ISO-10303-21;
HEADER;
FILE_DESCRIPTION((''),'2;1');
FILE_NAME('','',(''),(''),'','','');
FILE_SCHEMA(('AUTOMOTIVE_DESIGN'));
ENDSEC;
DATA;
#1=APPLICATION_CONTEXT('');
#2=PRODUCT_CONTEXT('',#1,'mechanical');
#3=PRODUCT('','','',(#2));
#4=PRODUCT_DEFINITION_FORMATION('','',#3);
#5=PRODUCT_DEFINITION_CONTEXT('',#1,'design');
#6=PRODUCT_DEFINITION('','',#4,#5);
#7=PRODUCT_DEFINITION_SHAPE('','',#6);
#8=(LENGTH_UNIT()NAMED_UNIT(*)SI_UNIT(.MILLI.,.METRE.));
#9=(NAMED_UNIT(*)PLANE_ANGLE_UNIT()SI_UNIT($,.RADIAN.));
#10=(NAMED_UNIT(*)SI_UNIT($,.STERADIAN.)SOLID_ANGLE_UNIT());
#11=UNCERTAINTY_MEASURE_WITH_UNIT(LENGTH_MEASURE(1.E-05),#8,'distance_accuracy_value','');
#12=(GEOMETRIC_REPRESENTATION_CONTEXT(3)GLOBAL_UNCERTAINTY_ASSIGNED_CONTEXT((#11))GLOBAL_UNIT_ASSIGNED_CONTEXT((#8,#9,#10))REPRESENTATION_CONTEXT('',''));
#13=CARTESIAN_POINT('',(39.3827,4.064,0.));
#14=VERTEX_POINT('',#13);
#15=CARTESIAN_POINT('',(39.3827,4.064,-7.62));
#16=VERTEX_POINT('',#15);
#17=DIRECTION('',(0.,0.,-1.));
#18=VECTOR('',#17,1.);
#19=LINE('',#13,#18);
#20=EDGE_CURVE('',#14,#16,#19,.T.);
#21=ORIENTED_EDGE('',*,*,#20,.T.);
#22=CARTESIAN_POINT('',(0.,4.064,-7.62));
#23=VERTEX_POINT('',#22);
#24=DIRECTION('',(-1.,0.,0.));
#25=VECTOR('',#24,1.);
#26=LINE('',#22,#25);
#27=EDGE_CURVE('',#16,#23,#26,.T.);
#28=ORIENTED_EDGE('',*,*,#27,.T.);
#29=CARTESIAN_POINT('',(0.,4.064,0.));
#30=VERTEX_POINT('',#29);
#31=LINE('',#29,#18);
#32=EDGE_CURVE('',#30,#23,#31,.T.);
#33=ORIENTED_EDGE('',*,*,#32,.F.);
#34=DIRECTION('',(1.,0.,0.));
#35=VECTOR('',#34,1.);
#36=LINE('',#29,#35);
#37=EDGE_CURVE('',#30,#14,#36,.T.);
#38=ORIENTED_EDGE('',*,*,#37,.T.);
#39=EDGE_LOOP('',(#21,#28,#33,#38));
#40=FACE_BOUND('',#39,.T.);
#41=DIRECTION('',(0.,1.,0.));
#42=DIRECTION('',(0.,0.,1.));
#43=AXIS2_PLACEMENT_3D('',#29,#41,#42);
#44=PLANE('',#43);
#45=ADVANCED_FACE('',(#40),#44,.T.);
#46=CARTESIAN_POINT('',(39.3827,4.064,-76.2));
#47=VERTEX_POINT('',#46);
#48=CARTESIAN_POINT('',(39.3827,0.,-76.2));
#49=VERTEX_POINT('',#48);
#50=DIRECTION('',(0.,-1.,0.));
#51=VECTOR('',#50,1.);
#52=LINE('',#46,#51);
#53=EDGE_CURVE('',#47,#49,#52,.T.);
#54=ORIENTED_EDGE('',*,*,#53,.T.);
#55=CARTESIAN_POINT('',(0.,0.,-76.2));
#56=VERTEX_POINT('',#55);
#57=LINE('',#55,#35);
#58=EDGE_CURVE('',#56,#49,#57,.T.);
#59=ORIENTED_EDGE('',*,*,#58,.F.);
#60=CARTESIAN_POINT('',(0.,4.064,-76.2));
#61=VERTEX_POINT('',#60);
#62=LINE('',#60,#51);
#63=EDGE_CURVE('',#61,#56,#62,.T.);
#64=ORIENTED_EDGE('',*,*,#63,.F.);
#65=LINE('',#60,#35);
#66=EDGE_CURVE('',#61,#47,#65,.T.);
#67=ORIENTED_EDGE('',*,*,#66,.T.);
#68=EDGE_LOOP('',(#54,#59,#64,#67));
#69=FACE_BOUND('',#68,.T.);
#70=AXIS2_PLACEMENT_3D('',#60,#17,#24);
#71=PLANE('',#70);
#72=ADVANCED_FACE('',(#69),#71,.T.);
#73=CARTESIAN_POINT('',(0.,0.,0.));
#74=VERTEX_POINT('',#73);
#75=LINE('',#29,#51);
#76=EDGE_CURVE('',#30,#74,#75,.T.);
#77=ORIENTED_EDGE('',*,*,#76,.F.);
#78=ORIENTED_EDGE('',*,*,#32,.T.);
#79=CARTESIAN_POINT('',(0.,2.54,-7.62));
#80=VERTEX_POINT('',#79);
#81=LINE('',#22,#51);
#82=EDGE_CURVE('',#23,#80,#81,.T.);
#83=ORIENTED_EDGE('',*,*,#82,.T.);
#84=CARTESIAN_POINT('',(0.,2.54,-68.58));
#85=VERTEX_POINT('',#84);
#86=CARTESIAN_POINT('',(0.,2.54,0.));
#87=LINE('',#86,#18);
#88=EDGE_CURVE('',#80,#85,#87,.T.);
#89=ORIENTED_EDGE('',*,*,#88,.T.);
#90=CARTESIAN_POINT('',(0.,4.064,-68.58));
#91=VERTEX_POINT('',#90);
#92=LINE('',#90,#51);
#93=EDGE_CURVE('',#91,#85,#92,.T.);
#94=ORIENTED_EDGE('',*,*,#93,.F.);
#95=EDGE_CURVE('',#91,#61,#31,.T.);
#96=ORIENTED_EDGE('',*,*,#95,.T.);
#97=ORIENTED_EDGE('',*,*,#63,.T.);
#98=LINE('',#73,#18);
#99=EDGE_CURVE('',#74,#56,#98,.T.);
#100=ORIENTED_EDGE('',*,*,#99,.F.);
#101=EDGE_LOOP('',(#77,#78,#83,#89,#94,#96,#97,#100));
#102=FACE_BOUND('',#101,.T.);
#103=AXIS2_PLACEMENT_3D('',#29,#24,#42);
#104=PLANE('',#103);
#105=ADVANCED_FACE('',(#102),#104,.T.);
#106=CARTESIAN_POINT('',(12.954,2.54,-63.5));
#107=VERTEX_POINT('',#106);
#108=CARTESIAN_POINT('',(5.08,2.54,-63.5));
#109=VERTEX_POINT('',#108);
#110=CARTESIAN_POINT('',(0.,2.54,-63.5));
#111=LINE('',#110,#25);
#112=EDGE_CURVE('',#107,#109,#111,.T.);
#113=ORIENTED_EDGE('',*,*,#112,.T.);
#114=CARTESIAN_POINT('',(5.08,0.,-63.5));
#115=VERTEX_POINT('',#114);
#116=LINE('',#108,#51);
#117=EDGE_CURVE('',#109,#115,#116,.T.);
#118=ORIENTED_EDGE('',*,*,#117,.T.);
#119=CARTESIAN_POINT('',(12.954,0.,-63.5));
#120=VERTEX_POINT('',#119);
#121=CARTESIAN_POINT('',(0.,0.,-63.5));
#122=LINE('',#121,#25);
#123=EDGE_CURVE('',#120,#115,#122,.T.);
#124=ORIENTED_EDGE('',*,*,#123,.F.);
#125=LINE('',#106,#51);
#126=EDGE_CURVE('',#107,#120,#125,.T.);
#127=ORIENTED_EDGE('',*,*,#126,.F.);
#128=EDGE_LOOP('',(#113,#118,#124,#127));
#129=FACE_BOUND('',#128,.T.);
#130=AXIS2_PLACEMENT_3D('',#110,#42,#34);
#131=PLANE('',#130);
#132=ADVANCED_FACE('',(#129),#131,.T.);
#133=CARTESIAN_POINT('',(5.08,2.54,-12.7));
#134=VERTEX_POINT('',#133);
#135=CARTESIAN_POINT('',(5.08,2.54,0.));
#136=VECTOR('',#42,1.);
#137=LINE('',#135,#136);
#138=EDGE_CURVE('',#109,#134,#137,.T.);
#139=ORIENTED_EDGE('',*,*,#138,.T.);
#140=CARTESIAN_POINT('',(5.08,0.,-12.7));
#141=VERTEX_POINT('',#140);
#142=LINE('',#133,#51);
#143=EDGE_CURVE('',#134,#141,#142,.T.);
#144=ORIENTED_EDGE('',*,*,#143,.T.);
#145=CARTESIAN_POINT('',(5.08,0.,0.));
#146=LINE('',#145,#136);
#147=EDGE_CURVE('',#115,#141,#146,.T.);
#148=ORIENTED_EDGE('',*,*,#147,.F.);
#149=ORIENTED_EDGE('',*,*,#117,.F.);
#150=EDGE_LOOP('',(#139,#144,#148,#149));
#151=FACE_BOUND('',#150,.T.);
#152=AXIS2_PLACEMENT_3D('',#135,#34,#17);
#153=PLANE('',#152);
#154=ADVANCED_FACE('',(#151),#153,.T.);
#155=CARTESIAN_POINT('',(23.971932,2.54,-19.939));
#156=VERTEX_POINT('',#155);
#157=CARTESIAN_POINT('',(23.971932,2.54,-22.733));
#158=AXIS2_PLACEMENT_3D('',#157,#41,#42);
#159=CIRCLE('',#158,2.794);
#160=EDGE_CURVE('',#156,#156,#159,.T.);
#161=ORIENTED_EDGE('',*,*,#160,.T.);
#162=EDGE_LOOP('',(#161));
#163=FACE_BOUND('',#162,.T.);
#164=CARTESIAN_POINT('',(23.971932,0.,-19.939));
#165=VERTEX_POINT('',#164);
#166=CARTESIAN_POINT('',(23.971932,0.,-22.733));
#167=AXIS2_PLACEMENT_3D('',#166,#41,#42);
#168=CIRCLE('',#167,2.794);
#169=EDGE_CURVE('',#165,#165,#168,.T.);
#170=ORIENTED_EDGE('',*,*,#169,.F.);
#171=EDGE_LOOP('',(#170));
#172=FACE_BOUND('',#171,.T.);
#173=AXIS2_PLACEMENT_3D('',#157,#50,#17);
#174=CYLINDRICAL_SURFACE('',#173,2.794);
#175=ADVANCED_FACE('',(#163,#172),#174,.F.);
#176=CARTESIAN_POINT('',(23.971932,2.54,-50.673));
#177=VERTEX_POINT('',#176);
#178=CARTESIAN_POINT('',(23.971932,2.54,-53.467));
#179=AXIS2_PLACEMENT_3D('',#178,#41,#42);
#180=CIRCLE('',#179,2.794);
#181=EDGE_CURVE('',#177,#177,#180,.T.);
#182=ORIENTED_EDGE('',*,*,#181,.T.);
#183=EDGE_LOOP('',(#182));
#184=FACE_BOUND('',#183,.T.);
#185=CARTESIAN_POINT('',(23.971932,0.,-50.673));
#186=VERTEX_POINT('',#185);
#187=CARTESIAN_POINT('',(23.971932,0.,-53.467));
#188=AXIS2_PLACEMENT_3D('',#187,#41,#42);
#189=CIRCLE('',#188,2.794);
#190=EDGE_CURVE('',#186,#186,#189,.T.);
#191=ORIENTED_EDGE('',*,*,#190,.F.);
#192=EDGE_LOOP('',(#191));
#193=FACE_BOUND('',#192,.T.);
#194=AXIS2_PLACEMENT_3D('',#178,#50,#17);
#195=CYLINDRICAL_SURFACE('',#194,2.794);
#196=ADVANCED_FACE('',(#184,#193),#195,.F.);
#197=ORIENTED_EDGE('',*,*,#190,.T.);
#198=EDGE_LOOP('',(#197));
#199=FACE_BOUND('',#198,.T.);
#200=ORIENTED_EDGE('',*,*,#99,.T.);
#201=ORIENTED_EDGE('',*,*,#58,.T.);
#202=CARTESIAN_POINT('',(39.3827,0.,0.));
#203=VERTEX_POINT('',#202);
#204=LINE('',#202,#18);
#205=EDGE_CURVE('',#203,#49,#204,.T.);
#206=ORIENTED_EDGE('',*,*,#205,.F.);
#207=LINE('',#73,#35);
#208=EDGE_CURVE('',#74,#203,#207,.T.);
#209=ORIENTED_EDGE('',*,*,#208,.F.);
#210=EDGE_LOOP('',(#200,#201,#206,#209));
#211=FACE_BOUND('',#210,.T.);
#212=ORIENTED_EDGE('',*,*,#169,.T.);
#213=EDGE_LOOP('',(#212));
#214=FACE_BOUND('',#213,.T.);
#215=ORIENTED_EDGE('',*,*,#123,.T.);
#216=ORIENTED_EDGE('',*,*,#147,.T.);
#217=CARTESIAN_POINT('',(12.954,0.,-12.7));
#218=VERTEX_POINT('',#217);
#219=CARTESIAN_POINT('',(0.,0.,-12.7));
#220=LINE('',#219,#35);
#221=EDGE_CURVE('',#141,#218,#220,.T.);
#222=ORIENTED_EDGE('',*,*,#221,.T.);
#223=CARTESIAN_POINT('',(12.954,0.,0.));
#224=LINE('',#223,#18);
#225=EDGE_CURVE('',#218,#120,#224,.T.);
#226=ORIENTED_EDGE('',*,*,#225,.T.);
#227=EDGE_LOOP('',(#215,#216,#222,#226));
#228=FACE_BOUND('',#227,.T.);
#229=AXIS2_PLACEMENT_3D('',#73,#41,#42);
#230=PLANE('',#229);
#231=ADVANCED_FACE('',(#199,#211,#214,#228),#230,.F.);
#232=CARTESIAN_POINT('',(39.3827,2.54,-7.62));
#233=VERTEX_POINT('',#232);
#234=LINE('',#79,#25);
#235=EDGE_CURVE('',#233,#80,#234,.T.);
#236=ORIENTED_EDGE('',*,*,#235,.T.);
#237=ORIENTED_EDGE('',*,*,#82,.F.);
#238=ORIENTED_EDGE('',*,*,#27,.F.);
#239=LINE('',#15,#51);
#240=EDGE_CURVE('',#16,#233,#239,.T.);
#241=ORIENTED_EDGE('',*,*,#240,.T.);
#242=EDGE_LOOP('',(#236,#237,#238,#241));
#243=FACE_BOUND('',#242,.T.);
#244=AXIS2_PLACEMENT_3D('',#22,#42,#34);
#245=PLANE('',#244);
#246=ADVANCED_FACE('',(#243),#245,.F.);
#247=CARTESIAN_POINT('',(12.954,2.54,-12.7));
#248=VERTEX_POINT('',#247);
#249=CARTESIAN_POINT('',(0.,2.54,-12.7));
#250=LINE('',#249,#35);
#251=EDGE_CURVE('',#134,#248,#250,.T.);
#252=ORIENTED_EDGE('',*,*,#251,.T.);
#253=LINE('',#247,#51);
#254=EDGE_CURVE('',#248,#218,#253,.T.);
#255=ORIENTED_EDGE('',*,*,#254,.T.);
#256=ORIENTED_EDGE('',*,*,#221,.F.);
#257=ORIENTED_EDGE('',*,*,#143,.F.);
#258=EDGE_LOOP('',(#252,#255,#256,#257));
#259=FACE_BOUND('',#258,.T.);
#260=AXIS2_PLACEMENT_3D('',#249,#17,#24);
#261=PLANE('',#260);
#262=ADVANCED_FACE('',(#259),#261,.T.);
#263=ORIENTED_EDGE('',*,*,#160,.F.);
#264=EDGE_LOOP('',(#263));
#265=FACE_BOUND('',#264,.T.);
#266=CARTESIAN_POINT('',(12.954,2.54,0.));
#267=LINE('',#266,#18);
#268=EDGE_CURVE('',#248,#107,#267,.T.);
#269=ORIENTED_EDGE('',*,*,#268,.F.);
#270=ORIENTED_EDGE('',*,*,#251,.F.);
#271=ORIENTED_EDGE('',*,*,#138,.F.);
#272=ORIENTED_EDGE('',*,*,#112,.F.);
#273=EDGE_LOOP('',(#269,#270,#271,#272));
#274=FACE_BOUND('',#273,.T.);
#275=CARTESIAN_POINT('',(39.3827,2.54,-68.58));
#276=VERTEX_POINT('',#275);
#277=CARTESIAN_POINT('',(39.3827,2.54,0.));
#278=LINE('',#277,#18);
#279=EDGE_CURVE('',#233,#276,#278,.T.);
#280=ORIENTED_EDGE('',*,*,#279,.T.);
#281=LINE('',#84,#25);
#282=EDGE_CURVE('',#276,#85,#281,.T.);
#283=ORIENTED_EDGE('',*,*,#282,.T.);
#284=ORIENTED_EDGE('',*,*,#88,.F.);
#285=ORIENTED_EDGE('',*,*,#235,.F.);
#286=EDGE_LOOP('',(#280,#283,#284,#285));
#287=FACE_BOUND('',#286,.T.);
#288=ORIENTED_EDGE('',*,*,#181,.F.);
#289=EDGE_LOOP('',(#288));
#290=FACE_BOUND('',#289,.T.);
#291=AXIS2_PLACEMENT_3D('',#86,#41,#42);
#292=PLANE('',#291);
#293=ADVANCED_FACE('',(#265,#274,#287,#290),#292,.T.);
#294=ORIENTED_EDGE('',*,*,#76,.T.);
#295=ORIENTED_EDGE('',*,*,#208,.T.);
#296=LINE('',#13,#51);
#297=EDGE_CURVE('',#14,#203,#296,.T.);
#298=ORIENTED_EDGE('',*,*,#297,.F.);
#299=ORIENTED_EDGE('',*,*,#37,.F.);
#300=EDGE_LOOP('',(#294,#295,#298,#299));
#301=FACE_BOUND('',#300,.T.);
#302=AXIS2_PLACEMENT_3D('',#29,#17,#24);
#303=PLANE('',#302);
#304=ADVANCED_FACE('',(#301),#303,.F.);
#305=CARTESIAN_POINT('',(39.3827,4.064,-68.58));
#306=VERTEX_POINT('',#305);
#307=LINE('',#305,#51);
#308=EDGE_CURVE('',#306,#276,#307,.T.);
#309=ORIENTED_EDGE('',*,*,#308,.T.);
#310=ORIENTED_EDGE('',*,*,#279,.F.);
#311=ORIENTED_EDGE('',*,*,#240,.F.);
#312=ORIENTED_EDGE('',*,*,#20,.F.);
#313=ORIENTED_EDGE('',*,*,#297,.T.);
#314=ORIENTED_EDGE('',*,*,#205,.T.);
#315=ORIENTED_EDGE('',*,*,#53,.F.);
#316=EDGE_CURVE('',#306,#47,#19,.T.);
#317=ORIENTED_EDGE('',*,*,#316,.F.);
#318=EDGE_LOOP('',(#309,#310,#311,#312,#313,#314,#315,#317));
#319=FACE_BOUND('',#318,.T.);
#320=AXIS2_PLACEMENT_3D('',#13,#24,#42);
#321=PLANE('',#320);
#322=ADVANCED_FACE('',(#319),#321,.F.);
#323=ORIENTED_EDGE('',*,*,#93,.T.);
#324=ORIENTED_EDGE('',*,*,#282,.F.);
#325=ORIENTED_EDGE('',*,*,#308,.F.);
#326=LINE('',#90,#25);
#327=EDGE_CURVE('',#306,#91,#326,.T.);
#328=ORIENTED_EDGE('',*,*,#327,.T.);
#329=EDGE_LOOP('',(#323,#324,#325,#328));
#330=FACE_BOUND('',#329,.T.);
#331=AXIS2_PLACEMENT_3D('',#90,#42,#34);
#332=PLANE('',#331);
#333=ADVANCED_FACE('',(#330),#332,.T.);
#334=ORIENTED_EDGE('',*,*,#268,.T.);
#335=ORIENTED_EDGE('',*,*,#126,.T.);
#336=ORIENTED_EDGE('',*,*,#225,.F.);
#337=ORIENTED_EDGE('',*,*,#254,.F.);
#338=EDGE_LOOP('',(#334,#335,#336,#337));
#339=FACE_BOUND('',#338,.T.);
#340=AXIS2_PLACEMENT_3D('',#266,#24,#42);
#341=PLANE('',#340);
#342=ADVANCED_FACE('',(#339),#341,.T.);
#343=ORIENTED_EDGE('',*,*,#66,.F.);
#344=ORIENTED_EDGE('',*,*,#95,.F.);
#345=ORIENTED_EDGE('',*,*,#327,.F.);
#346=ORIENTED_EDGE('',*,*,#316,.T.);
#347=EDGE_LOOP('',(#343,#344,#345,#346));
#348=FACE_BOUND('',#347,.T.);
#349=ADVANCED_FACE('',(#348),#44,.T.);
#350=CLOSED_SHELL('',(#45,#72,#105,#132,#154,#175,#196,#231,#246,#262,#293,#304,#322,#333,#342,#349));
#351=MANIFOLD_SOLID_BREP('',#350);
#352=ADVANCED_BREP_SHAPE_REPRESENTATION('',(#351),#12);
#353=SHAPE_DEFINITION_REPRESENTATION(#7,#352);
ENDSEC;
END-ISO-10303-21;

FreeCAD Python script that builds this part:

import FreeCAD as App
import Part
import Sketcher
Q = App.Units.Quantity


def add_polygon(sketch, points):
    """Adds a closed chain of lines whose ends are joined by coincident constraints."""
    first, n = sketch.GeometryCount, len(points)
    for a, b in zip(points, points[1:] + points[:1]):
        sketch.addGeometry(Part.LineSegment(App.Vector(*a, 0), App.Vector(*b, 0)), False)
    for i in range(n):
        sketch.addConstraint(Sketcher.Constraint("Coincident", first + i, 2, first + (i + 1) % n, 1))

doc = App.newDocument("Part")
body = doc.addObject("PartDesign::Body", "Body")

# Sketch on XZ plane
sketch1 = body.newObject("Sketcher::SketchObject", "Sketch")
sketch1.AttachmentSupport = (doc.getObject("XZ_Plane"), [""])
sketch1.MapMode = "FlatFace"
add_polygon(sketch1, [(0, -8), (0, 0), (39, 0), (39, -8)])  # lines 0-3
sketch1.addConstraint([
    Sketcher.Constraint("Vertical", 0),
    Sketcher.Constraint("Horizontal", 1),
    Sketcher.Constraint("Vertical", 2),
    Sketcher.Constraint("Horizontal", 3),
    Sketcher.Constraint("Coincident", 0, 2, -1, 1),
    Sketcher.Constraint("DistanceY", 0, 1, 0, 2, Q("0.3 in")),
    Sketcher.Constraint("DistanceX", 1, 1, 1, 2, Q("1.5505 in")),
])
pad1 = body.newObject("PartDesign::Pad", "Pad")
pad1.Profile = sketch1
pad1.Length = Q("0.16 in")
pad1.Reversed = True
body2 = doc.addObject("PartDesign::Body", "Body001")

# Sketch on XZ plane
sketch2 = body2.newObject("Sketcher::SketchObject", "Sketch001")
sketch2.AttachmentSupport = (doc.getObject("XZ_Plane001"), [""])
sketch2.MapMode = "FlatFace"
add_polygon(sketch2, [(0, -76), (0, -69), (39, -69), (39, -76)])  # lines 0-3
sketch2.addConstraint([
    Sketcher.Constraint("Vertical", 0),
    Sketcher.Constraint("Horizontal", 1),
    Sketcher.Constraint("Vertical", 2),
    Sketcher.Constraint("Horizontal", 3),
    Sketcher.Constraint("PointOnObject", 0, 2, -2),
    Sketcher.Constraint("DistanceY", 0, 1, 0, 2, Q("0.3 in")),
    Sketcher.Constraint("DistanceY", 2, 2, -1, 1, Q("3 in")),
    Sketcher.Constraint("DistanceX", 1, 1, 1, 2, Q("1.5505 in")),
])
pad2 = body2.newObject("PartDesign::Pad", "Pad001")
pad2.Profile = sketch2
pad2.Length = Q("0.16 in")
pad2.Reversed = True
body.AllowCompound = True
doc.recompute()

boolean = body.newObject("PartDesign::Boolean", "Boolean")
boolean.Type = "Fuse"
boolean.addObjects([body2])

# Sketch on XZ plane
sketch3 = body.newObject("Sketcher::SketchObject", "Sketch002")
sketch3.AttachmentSupport = (doc.getObject("XZ_Plane"), [""])
sketch3.MapMode = "FlatFace"
add_polygon(sketch3, [(0, -68.6), (0, -7.6), (39.4, -7.6), (39.4, -68.6)])  # lines 0-3
add_polygon(sketch3, [(5.1, -63.5), (13, -63.5), (13, -12.7), (5.1, -12.7)])  # lines 4-7
sketch3.addGeometry(Part.Circle(App.Vector(24, -22.7, 0), App.Vector(0, 0, 1), 2.8), False)  # 8
sketch3.addGeometry(Part.Circle(App.Vector(24, -53.5, 0), App.Vector(0, 0, 1), 2.8), False)  # 9
sketch3.addConstraint([
    Sketcher.Constraint("Vertical", 0),
    Sketcher.Constraint("Horizontal", 1),
    Sketcher.Constraint("Vertical", 2),
    Sketcher.Constraint("Horizontal", 3),
    Sketcher.Constraint("Horizontal", 4),
    Sketcher.Constraint("Vertical", 5),
    Sketcher.Constraint("Horizontal", 6),
    Sketcher.Constraint("Vertical", 7),
    Sketcher.Constraint("Equal", 8, 9),
    Sketcher.Constraint("PointOnObject", 0, 2, -2),
    Sketcher.Constraint("Vertical", 8, 3, 9, 3),
    Sketcher.Constraint("Diameter", 8, Q("0.22 in")),
    Sketcher.Constraint("DistanceY", 5, 1, 5, 2, Q("2 in")),
    Sketcher.Constraint("DistanceY", 0, 1, 0, 2, Q("2.4 in")),
    Sketcher.Constraint("DistanceX", 4, 1, 4, 2, Q("0.31 in")),
    Sketcher.Constraint("DistanceY", 0, 2, -1, 1, Q("0.3 in")),
    Sketcher.Constraint("DistanceY", 4, 2, -1, 1, Q("2.5 in")),
    Sketcher.Constraint("DistanceX", -1, 1, 6, 2, Q("0.2 in")),
    Sketcher.Constraint("DistanceY", 9, 3, 8, 3, Q("1.21 in")),
    Sketcher.Constraint("DistanceX", 1, 1, 1, 2, Q("1.5505 in")),
    Sketcher.Constraint("DistanceY", 8, 3, -1, 1, Q("0.895 in")),
    Sketcher.Constraint("DistanceX", -1, 1, 8, 3, 23.971932),
])
pad3 = body.newObject("PartDesign::Pad", "Pad002")
pad3.Profile = sketch3
pad3.Length = Q("0.1 in")
pad3.Reversed = True

doc.recompute()
